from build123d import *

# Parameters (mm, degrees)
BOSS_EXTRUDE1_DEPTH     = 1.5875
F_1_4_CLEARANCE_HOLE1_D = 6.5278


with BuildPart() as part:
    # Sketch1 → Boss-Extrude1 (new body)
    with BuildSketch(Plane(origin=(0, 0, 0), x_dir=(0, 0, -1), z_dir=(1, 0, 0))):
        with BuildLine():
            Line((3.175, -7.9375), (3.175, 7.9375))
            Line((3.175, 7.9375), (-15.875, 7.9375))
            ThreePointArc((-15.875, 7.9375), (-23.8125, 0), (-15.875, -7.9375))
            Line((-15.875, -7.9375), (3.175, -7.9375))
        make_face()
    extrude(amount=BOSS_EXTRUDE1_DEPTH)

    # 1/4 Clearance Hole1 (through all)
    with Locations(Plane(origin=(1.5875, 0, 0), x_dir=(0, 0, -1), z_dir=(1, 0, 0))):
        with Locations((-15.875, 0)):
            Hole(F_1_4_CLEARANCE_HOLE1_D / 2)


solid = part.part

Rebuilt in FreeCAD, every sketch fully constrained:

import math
import FreeCAD as App
import Part
import Sketcher
from FreeCAD import Vector
Q = App.Units.Quantity

doc = App.newDocument("Part")
body = doc.addObject("PartDesign::Body", "Body")

# Sketch on YZ plane
sketch1 = doc.addObject("Sketcher::SketchObject", "Sketch")
body.addObject(sketch1)
sketch1.AttachmentSupport = (doc.YZ_Plane, [""])
sketch1.MapMode = "FlatFace"
sketch1.addGeometry(Part.LineSegment(Vector(-7.9375, -3.175, 0), Vector(7.9375, -3.175, 0)), False)
sketch1.addGeometry(Part.LineSegment(Vector(7.9375, -3.175, 0), Vector(7.9375, 15.875, 0)), False)
sketch1.addGeometry(Part.ArcOfCircle(Part.Circle(Vector(0, 15.875, 0), Vector(0, 0, 1), 7.9375), math.radians(0), math.radians(180)), False)
sketch1.addGeometry(Part.LineSegment(Vector(-7.9375, 15.875, 0), Vector(-7.9375, -3.175, 0)), False)
sketch1.addConstraint(Sketcher.Constraint("Coincident", 0, 2, 1, 1))
sketch1.addConstraint(Sketcher.Constraint("Tangent", 1, 2, 2, 1))
sketch1.addConstraint(Sketcher.Constraint("Tangent", 2, 2, 3, 1))
sketch1.addConstraint(Sketcher.Constraint("Coincident", 3, 2, 0, 1))
sketch1.addConstraint(Sketcher.Constraint("Horizontal", 0))
sketch1.addConstraint(Sketcher.Constraint("Vertical", 1))
sketch1.addConstraint(Sketcher.Constraint("Vertical", 3))
sketch1.addConstraint(Sketcher.Constraint("PointOnObject", 2, 3, -2))
sketch1.addConstraint(Sketcher.Constraint("Radius", 2, Q("0.3125 in")))
sketch1.addConstraint(Sketcher.Constraint("DistanceY", 1, 1, 1, 2, Q("0.75 in")))
sketch1.addConstraint(Sketcher.Constraint("DistanceY", -1, 1, 2, 3, Q("0.625 in")))
pad1 = doc.addObject("PartDesign::Pad", "Pad")
body.addObject(pad1)
pad1.Profile = sketch1
pad1.Length = Q("0.0625 in")

# Sketch on YZ plane
sketch2 = doc.addObject("Sketcher::SketchObject", "Sketch001")
body.addObject(sketch2)
sketch2.AttachmentSupport = (doc.YZ_Plane, [""])
sketch2.MapMode = "FlatFace"
sketch2.AttachmentOffset = App.Placement(Vector(0, 0, 0.0625 * 25.4), App.Rotation())
sketch2.addGeometry(Part.Circle(Vector(0, 15.875, 0), Vector(0, 0, 1), 3.2639), False)
sketch2.addConstraint(Sketcher.Constraint("PointOnObject", 0, 3, -2))
sketch2.addConstraint(Sketcher.Constraint("Diameter", 0, Q("0.257 in")))
sketch2.addConstraint(Sketcher.Constraint("DistanceY", -1, 1, 0, 3, Q("0.625 in")))
doc.recompute()
hole = doc.addObject("PartDesign::Hole", "Hole")
body.addObject(hole)
hole.Profile = sketch2
hole.ThreadType = "None"
hole.Diameter = Q("0.257 in")
hole.DepthType = "ThroughAll"

doc.recompute()
